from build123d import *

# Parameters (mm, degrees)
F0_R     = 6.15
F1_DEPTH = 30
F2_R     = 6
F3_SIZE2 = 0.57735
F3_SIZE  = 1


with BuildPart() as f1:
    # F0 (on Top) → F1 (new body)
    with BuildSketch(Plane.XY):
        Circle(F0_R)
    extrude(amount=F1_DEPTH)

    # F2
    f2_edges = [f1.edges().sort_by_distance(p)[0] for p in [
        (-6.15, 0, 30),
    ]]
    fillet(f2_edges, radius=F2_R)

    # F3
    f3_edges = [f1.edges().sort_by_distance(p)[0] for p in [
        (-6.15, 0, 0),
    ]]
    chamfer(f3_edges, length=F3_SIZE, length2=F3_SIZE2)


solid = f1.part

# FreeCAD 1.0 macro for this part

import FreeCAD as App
import Part
import Sketcher
Q = App.Units.Quantity


def edges_at(feature, points):
    """Names of the edges that pass closest to the given points."""
    edges = feature.Shape.Edges
    near = lambda p: min(range(len(edges)), key=lambda i: edges[i].distToShape(Part.Vertex(*p))[0])
    return sorted({f"Edge{near(p) + 1}" for p in points})

doc = App.newDocument("Part")
params = doc.addObject("Spreadsheet::Sheet", "Params")
for row, (alias, value) in enumerate([
    ("sketch1_diameter", "12.3 mm"),
    ("pad1_length", "30 mm"),
    ("fillet_radius", "6 mm"),
    ("chamfer_size", "1 mm"),
    ("chamfer_size2", "0.57735 mm"),
], start=1):
    params.set(f"A{row}", alias)
    params.set(f"B{row}", "=" + value)
    params.setAlias(f"B{row}", alias)

body = doc.addObject("PartDesign::Body", "Body")

# Sketch on XY plane
sketch1 = doc.addObject("Sketcher::SketchObject", "Sketch")
body.addObject(sketch1)
sketch1.AttachmentSupport = (doc.XY_Plane, [""])
sketch1.MapMode = "FlatFace"
sketch1.addGeometry(Part.Circle(App.Vector(0, 0, 0), App.Vector(0, 0, 1), 6), False)
sketch1.addConstraint(Sketcher.Constraint("Coincident", 0, 3, -1, 1))
sketch1.addConstraint(Sketcher.Constraint("Diameter", 0, Q("12.3 mm")))
sketch1.setExpression("Constraints[1]", "Params.sketch1_diameter")
pad1 = doc.addObject("PartDesign::Pad", "Pad")
body.addObject(pad1)
pad1.Profile = sketch1
pad1.setExpression("Length", "Params.pad1_length")
doc.recompute()

fillet = doc.addObject("PartDesign::Fillet", "Fillet")
body.addObject(fillet)
fillet.Base = (pad1, edges_at(pad1, [(-6.15, 0, 30)]))
fillet.setExpression("Radius", "Params.fillet_radius")
doc.recompute()

chamfer = doc.addObject("PartDesign::Chamfer", "Chamfer")
body.addObject(chamfer)
chamfer.Base = (fillet, edges_at(fillet, [(-6.15, 0, 0)]))
chamfer.ChamferType = "Two distances"
chamfer.setExpression("Size", "Params.chamfer_size")
chamfer.setExpression("Size2", "Params.chamfer_size2")

doc.recompute()
